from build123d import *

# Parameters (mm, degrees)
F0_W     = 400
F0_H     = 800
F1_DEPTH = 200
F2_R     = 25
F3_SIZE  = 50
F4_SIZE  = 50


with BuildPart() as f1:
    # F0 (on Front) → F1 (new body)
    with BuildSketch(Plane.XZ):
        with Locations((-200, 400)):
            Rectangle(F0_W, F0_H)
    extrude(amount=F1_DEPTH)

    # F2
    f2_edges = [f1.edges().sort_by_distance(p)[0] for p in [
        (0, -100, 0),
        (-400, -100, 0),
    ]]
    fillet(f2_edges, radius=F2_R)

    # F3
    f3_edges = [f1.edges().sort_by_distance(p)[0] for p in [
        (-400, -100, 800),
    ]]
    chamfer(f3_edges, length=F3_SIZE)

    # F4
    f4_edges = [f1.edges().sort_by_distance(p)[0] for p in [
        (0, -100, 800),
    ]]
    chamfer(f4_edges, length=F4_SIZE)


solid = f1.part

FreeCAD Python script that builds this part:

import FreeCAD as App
import Part
import Sketcher
Q = App.Units.Quantity


def edges_at(feature, points):
    """Names of the edges that pass closest to the given points."""
    edges = feature.Shape.Edges
    near = lambda p: min(range(len(edges)), key=lambda i: edges[i].distToShape(Part.Vertex(*p))[0])
    return sorted({f"Edge{near(p) + 1}" for p in points})


def add_polygon(sketch, points):
    """Adds a closed chain of lines whose ends are joined by coincident constraints."""
    first, n = sketch.GeometryCount, len(points)
    for a, b in zip(points, points[1:] + points[:1]):
        sketch.addGeometry(Part.LineSegment(App.Vector(*a, 0), App.Vector(*b, 0)), False)
    for i in range(n):
        sketch.addConstraint(Sketcher.Constraint("Coincident", first + i, 2, first + (i + 1) % n, 1))

doc = App.newDocument("Part")
body = doc.addObject("PartDesign::Body", "Body")

# Sketch on XZ plane
sketch1 = doc.addObject("Sketcher::SketchObject", "Sketch")
body.addObject(sketch1)
sketch1.AttachmentSupport = (doc.XZ_Plane, [""])
sketch1.MapMode = "FlatFace"
add_polygon(sketch1, [(-400, 800), (-400, 0), (0, 0), (0, 800)])  # lines 0-3
sketch1.addConstraint([
    Sketcher.Constraint("Vertical", 0),
    Sketcher.Constraint("Horizontal", 1),
    Sketcher.Constraint("Vertical", 2),
    Sketcher.Constraint("Horizontal", 3),
    Sketcher.Constraint("Coincident", 1, 2, -1, 1),
    Sketcher.Constraint("DistanceX", 1, 1, 1, 2, Q("400 mm")),
    Sketcher.Constraint("DistanceY", 0, 2, 0, 1, Q("800 mm")),
])
pad1 = doc.addObject("PartDesign::Pad", "Pad")
body.addObject(pad1)
pad1.Profile = sketch1
pad1.Length = 200
doc.recompute()

fillet = doc.addObject("PartDesign::Fillet", "Fillet")
body.addObject(fillet)
fillet.Base = (pad1, edges_at(pad1, [(0, -100, 0), (-400, -100, 0)]))
fillet.Radius = 25
doc.recompute()

chamfer = doc.addObject("PartDesign::Chamfer", "Chamfer")
body.addObject(chamfer)
chamfer.Base = (fillet, edges_at(fillet, [(-400, -100, 800)]))
chamfer.Size = 50
doc.recompute()

chamfer2 = doc.addObject("PartDesign::Chamfer", "Chamfer001")
body.addObject(chamfer2)
chamfer2.Base = (chamfer, edges_at(chamfer, [(0, -100, 800)]))
chamfer2.Size = 50

doc.recompute()
